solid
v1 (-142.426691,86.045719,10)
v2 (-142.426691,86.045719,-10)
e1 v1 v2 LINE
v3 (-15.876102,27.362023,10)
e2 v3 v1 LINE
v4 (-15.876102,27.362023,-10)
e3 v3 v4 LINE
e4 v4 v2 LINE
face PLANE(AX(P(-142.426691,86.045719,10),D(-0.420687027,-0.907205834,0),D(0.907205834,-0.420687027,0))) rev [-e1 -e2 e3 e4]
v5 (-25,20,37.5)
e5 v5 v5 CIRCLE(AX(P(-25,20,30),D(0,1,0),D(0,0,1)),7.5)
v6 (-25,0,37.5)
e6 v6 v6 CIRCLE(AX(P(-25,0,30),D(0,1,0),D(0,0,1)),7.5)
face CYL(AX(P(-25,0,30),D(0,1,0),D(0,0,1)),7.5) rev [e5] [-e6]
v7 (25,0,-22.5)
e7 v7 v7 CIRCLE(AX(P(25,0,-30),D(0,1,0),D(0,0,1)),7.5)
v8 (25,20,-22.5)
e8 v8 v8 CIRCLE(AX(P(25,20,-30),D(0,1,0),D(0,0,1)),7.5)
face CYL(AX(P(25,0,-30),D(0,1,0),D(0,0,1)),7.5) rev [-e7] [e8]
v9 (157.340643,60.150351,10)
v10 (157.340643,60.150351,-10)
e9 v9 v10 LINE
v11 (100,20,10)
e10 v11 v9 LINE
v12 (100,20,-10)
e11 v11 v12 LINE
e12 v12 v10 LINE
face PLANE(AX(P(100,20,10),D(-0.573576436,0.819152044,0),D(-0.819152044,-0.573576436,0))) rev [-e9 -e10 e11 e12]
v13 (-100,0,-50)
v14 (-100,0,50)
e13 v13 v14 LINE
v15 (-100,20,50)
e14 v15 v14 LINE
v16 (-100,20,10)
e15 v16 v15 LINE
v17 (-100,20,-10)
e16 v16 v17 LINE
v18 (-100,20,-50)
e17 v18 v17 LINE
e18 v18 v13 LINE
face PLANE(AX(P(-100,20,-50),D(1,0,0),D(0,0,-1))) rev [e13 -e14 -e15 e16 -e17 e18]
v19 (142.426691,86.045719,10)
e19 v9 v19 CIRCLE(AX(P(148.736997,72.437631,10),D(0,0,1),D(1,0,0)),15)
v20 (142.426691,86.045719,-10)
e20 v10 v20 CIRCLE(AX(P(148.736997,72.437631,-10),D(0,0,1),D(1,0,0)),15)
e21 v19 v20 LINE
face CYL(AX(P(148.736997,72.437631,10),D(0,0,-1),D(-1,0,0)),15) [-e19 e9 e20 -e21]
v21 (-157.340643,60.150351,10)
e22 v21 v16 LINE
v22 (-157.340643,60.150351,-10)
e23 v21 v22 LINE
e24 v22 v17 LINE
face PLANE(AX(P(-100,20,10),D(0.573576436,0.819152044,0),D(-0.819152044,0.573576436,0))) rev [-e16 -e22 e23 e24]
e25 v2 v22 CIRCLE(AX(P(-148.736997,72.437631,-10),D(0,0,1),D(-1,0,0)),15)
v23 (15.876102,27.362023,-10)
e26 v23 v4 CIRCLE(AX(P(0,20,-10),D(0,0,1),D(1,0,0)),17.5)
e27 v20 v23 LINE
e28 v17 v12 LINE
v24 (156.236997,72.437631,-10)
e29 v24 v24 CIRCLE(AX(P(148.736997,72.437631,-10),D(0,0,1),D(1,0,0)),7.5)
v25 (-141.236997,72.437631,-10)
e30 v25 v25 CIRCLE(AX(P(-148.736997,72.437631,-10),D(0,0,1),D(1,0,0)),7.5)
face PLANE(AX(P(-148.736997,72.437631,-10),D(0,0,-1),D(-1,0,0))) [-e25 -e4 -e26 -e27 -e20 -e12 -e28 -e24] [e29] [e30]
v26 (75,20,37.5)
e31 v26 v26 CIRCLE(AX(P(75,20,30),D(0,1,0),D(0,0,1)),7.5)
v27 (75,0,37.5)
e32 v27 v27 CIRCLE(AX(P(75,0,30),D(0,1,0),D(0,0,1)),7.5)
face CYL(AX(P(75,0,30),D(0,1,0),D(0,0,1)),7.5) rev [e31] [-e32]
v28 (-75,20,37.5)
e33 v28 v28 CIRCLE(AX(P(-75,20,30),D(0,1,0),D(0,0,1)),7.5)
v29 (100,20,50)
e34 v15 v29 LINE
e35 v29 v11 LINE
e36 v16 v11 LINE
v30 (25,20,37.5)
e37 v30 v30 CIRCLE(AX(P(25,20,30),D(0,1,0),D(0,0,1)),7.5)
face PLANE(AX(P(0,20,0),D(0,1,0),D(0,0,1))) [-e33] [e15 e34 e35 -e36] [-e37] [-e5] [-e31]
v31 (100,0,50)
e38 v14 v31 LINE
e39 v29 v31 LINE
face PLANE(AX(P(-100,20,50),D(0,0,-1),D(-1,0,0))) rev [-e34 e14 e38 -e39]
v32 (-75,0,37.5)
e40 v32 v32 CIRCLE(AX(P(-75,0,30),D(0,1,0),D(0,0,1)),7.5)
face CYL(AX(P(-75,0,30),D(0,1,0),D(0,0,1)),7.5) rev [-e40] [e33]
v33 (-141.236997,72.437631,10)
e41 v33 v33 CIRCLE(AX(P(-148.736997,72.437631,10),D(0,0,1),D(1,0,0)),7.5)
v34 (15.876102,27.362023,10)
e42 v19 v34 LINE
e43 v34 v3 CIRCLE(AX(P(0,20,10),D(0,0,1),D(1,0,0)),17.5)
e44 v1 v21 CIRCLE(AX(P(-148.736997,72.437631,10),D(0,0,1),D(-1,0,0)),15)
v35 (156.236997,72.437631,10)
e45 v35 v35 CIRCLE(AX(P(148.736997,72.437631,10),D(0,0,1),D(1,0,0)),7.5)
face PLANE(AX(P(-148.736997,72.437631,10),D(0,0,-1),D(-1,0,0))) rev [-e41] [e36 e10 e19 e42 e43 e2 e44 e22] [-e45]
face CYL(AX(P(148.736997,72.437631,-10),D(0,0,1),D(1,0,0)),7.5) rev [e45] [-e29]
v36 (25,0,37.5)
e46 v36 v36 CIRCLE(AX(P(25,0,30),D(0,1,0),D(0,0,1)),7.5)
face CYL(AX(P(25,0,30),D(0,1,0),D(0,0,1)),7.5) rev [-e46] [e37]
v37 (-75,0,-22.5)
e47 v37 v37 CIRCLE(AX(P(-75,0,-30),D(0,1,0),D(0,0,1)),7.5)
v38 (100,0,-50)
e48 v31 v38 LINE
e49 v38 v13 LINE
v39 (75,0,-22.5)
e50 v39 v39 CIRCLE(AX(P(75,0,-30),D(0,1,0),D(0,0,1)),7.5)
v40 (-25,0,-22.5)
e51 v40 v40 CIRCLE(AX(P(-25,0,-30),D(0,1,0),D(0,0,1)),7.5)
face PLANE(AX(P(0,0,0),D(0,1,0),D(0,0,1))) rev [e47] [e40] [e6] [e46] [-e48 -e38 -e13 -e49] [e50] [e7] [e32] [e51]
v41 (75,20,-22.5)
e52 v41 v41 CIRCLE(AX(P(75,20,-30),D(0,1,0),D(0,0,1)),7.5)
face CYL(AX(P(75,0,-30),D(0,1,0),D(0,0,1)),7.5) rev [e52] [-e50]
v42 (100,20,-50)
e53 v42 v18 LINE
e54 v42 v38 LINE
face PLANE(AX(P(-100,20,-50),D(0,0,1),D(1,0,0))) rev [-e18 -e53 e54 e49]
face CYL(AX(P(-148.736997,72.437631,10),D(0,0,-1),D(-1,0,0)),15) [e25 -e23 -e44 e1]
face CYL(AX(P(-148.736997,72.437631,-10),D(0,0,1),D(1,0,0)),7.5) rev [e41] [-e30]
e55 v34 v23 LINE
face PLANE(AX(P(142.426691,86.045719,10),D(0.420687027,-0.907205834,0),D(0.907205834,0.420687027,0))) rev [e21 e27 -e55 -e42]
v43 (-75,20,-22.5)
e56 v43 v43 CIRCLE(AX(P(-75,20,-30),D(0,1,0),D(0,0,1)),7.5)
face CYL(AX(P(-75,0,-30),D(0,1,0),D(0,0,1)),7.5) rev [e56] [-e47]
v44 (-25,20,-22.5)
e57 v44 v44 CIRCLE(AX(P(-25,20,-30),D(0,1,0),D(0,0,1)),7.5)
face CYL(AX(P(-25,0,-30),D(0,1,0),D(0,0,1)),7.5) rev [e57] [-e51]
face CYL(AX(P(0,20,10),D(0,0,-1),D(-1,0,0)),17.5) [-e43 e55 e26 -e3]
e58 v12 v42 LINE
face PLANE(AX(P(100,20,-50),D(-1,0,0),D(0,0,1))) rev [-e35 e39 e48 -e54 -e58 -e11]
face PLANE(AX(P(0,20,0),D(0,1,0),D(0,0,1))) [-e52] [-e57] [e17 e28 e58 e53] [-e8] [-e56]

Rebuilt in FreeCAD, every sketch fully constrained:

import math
import FreeCAD as App
import Part
import Sketcher
from FreeCAD import Vector
Q = App.Units.Quantity

doc = App.newDocument("Part")
body = doc.addObject("PartDesign::Body", "Body")

# Sketch on XZ plane
sketch1 = body.newObject("Sketcher::SketchObject", "Sketch")
sketch1.AttachmentSupport = (doc.getObject("XZ_Plane"), [""])
sketch1.MapMode = "FlatFace"
sketch1.addGeometry(Part.LineSegment(Vector(-100, -50, 0), Vector(-100, 50, 0)), False)
sketch1.addGeometry(Part.LineSegment(Vector(-100, 50, 0), Vector(100, 50, 0)), False)
sketch1.addGeometry(Part.LineSegment(Vector(100, 50, 0), Vector(100, -50, 0)), False)
sketch1.addGeometry(Part.LineSegment(Vector(100, -50, 0), Vector(-100, -50, 0)), False)
sketch1.addConstraint(Sketcher.Constraint("Coincident", 0, 2, 1, 1))
sketch1.addConstraint(Sketcher.Constraint("Coincident", 1, 2, 2, 1))
sketch1.addConstraint(Sketcher.Constraint("Coincident", 2, 2, 3, 1))
sketch1.addConstraint(Sketcher.Constraint("Coincident", 3, 2, 0, 1))
sketch1.addConstraint(Sketcher.Constraint("Vertical", 0))
sketch1.addConstraint(Sketcher.Constraint("Horizontal", 1))
sketch1.addConstraint(Sketcher.Constraint("Vertical", 2))
sketch1.addConstraint(Sketcher.Constraint("Horizontal", 3))
sketch1.addConstraint(Sketcher.Constraint("Symmetric", 0, 2, 2, 2, -1, 1))
sketch1.addConstraint(Sketcher.Constraint("DistanceX", 1, 1, 1, 2, 200.0))
sketch1.addConstraint(Sketcher.Constraint("DistanceY", 0, 1, 0, 2, 100.0))
pad1 = body.newObject("PartDesign::Pad", "Pad")
pad1.Profile = sketch1
pad1.Length = 20
pad1.Reversed = True

# Sketch on XZ plane
sketch2 = body.newObject("Sketcher::SketchObject", "Sketch001")
sketch2.AttachmentSupport = (doc.getObject("XZ_Plane"), [""])
sketch2.MapMode = "FlatFace"
sketch2.AttachmentOffset = App.Placement(Vector(0, 0, -20), App.Rotation())
sketch2.addGeometry(Part.Circle(Vector(-75, -30, 0), Vector(0, 0, 1), 8), False)
sketch2.addGeometry(Part.Circle(Vector(-25, -30, 0), Vector(0, 0, 1), 8), False)
sketch2.addGeometry(Part.Circle(Vector(25, -30, 0), Vector(0, 0, 1), 8), False)
sketch2.addGeometry(Part.Circle(Vector(75, -30, 0), Vector(0, 0, 1), 8), False)
sketch2.addGeometry(Part.Circle(Vector(-75, 30, 0), Vector(0, 0, 1), 8), False)
sketch2.addGeometry(Part.Circle(Vector(-25, 30, 0), Vector(0, 0, 1), 8), False)
sketch2.addGeometry(Part.Circle(Vector(25, 30, 0), Vector(0, 0, 1), 8), False)
sketch2.addGeometry(Part.Circle(Vector(75, 30, 0), Vector(0, 0, 1), 8), False)
sketch2.addConstraint(Sketcher.Constraint("Equal", 0, 1))
sketch2.addConstraint(Sketcher.Constraint("Equal", 1, 2))
sketch2.addConstraint(Sketcher.Constraint("Equal", 2, 3))
sketch2.addConstraint(Sketcher.Constraint("Equal", 3, 4))
sketch2.addConstraint(Sketcher.Constraint("Equal", 4, 5))
sketch2.addConstraint(Sketcher.Constraint("Equal", 5, 6))
sketch2.addConstraint(Sketcher.Constraint("Equal", 6, 7))
sketch2.addConstraint(Sketcher.Constraint("Symmetric", 3, 3, 4, 3, -1, 1))
sketch2.addConstraint(Sketcher.Constraint("Symmetric", 2, 3, 5, 3, -1, 1))
sketch2.addConstraint(Sketcher.Constraint("Symmetric", 1, 3, 6, 3, -1, 1))
sketch2.addConstraint(Sketcher.Constraint("Symmetric", 0, 3, 7, 3, -1, 1))
sketch2.addConstraint(Sketcher.Constraint("Symmetric", 1, 3, 2, 3, -2))
sketch2.addConstraint(Sketcher.Constraint("Symmetric", 0, 3, 3, 3, -2))
sketch2.addConstraint(Sketcher.Constraint("Horizontal", 0, 3, 1, 3))
sketch2.addConstraint(Sketcher.Constraint("Diameter", 0, 15.0))
sketch2.addConstraint(Sketcher.Constraint("DistanceX", 0, 3, -1, 1, 75.0))
sketch2.addConstraint(Sketcher.Constraint("DistanceY", 0, 3, -1, 1, 30.0))
sketch2.addConstraint(Sketcher.Constraint("DistanceX", 1, 3, -1, 1, 25.0))
pocket1 = body.newObject("PartDesign::Pocket", "Pocket")
pocket1.Profile = sketch2
pocket1.Length = 20
pocket1.Reversed = True

# Sketch on XY plane
sketch3 = body.newObject("Sketcher::SketchObject", "Sketch002")
sketch3.AttachmentSupport = (doc.getObject("XY_Plane"), [""])
sketch3.MapMode = "FlatFace"
sketch3.addGeometry(Part.LineSegment(Vector(-100, 20, 0), Vector(100, 20, 0)), False)
sketch3.addGeometry(Part.LineSegment(Vector(100, 20, 0), Vector(157, 60, 0)), False)
sketch3.addGeometry(Part.ArcOfCircle(Part.Circle(Vector(149, 72, 0), Vector(0, 0, 1), 15), math.radians(-55), math.radians(115)), False)
sketch3.addGeometry(Part.LineSegment(Vector(142, 86, 0), Vector(16, 27, 0)), False)
sketch3.addGeometry(Part.ArcOfCircle(Part.Circle(Vector(0, 20, 0), Vector(0, 0, 1), 18), math.radians(25), math.radians(155)), False)
sketch3.addGeometry(Part.LineSegment(Vector(-16, 27, 0), Vector(-142, 86, 0)), False)
sketch3.addGeometry(Part.ArcOfCircle(Part.Circle(Vector(-149, 72, 0), Vector(0, 0, 1), 15), math.radians(65), math.radians(235)), False)
sketch3.addGeometry(Part.LineSegment(Vector(-157, 60, 0), Vector(-100, 20, 0)), False)
sketch3.addConstraint(Sketcher.Constraint("Coincident", 0, 2, 1, 1))
sketch3.addConstraint(Sketcher.Constraint("Tangent", 1, 2, 2, 1))
sketch3.addConstraint(Sketcher.Constraint("Tangent", 2, 2, 3, 1))
sketch3.addConstraint(Sketcher.Constraint("Coincident", 3, 2, 4, 1))
sketch3.addConstraint(Sketcher.Constraint("Coincident", 4, 2, 5, 1))
sketch3.addConstraint(Sketcher.Constraint("Tangent", 5, 2, 6, 1))
sketch3.addConstraint(Sketcher.Constraint("Tangent", 6, 2, 7, 1))
sketch3.addConstraint(Sketcher.Constraint("Coincident", 7, 2, 0, 1))
sketch3.addConstraint(Sketcher.Constraint("Horizontal", 0))
sketch3.addConstraint(Sketcher.Constraint("Equal", 2, 6))
sketch3.addConstraint(Sketcher.Constraint("Symmetric", 2, 3, 6, 3, -2))
sketch3.addConstraint(Sketcher.Constraint("Symmetric", 3, 2, 4, 2, -2))
sketch3.addConstraint(Sketcher.Constraint("Horizontal", 4, 3, 0, 2))
sketch3.addConstraint(Sketcher.Constraint("Horizontal", 1, 2, 6, 2))
sketch3.addConstraint(Sketcher.Constraint("Radius", 2, 15.0))
sketch3.addConstraint(Sketcher.Constraint("Radius", 4, 17.5))
sketch3.addConstraint(Sketcher.Constraint("DistanceX", 0, 1, 0, 2, 200.0))
sketch3.addConstraint(Sketcher.Constraint("Angle", 1, Q("35 deg")))
sketch3.addConstraint(Sketcher.Constraint("Distance", 1, 70.0))
sketch3.addConstraint(Sketcher.Constraint("DistanceY", -1, 1, 4, 3, 20.0))
sketch3.addConstraint(Sketcher.Constraint("DistanceX", -1, 1, 2, 2, 142.426691))
pad2 = body.newObject("PartDesign::Pad", "Pad001")
pad2.Profile = sketch3
pad2.Length = 20
pad2.Midplane = True

# Sketch on XY plane
sketch4 = body.newObject("Sketcher::SketchObject", "Sketch003")
sketch4.AttachmentSupport = (doc.getObject("XY_Plane"), [""])
sketch4.MapMode = "FlatFace"
sketch4.AttachmentOffset = App.Placement(Vector(0, 0, 10), App.Rotation())
sketch4.addGeometry(Part.Circle(Vector(149, 72, 0), Vector(0, 0, 1), 8), False)
sketch4.addGeometry(Part.Circle(Vector(-149, 72, 0), Vector(0, 0, 1), 8), False)
sketch4.addConstraint(Sketcher.Constraint("Equal", 0, 1))
sketch4.addConstraint(Sketcher.Constraint("Symmetric", 0, 3, 1, 3, -2))
sketch4.addConstraint(Sketcher.Constraint("Diameter", 0, 15.0))
sketch4.addConstraint(Sketcher.Constraint("DistanceY", -1, 1, 0, 3, 72.437631))
sketch4.addConstraint(Sketcher.Constraint("DistanceX", -1, 1, 0, 3, 148.736997))
pocket2 = body.newObject("PartDesign::Pocket", "Pocket001")
pocket2.Profile = sketch4
pocket2.Length = 20

doc.recompute()
